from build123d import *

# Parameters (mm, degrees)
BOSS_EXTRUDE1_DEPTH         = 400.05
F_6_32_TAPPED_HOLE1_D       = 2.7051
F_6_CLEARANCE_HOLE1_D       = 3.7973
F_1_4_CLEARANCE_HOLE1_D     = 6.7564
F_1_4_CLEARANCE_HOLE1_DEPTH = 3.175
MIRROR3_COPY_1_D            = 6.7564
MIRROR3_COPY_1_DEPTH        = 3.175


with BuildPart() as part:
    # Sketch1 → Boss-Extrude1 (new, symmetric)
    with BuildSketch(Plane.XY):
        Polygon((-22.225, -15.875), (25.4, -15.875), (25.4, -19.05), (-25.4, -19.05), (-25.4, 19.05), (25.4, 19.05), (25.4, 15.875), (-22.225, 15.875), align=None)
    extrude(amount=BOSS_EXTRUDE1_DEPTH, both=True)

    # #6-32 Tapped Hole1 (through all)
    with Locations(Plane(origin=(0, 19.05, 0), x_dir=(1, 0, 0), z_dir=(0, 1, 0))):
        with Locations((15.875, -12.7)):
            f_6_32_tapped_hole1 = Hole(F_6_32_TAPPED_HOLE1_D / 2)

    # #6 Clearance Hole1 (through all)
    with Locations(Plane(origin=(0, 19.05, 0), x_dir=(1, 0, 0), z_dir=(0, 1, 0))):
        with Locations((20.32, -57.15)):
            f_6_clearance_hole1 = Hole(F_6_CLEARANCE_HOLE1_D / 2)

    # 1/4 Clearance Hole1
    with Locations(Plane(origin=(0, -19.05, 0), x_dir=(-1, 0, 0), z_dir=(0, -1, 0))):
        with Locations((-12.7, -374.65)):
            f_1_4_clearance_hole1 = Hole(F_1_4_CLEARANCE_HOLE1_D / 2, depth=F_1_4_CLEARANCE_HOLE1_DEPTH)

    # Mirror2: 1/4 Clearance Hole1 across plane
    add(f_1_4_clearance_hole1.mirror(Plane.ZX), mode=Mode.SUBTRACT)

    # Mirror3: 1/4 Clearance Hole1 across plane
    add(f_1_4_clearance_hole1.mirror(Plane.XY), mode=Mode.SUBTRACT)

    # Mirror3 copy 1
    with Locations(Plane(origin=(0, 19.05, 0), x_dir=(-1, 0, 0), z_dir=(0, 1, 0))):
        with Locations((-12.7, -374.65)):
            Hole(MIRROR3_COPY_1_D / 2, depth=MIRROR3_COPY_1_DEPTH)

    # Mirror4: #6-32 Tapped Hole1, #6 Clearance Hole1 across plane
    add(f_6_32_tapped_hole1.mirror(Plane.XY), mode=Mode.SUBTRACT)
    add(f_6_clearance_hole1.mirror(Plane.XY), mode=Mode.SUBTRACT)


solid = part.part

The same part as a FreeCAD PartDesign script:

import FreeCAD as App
import Part
import Sketcher

V = App.Vector
Q = App.Units.Quantity

doc = App.newDocument("Part")
params = doc.addObject("Spreadsheet::Sheet", "Params")
for row, (alias, value) in enumerate([
    ("sketch1_width", "2 in"),
    ("sketch1_height", "1.5 in"),
    ("sketch1_height2", "1.25 in"),
    ("sketch1_width2", "1.875 in"),
    ("pad1_length", "31.5 in"),
    ("hole_diameter", "0.1065 in"),
    ("hole2_diameter", "0.1495 in"),
    ("sketch4_diameter", "0.266 in"),
    ("hole3_diameter", "0.266 in"),
    ("hole3_depth", "0.125 in"),
    ("sketch5_diameter", "0.266 in"),
    ("hole4_diameter", "0.266 in"),
    ("hole4_depth", "0.125 in"),
], start=1):
    params.set(f"A{row}", alias)
    params.set(f"B{row}", "=" + value)
    params.setAlias(f"B{row}", alias)

body = doc.addObject("PartDesign::Body", "Body")

sketch1 = body.newObject("Sketcher::SketchObject", "Sketch")
sketch1.AttachmentSupport = (doc.getObject("XY_Plane"), [""])
sketch1.MapMode = "FlatFace"
sketch1.addGeometry(Part.LineSegment(V(25.4, -15.9, 0), V(-22.2, -15.9, 0)), False)
sketch1.addGeometry(Part.LineSegment(V(-22.2, -15.9, 0), V(-22.2, 15.9, 0)), False)
sketch1.addGeometry(Part.LineSegment(V(-22.2, 15.9, 0), V(25.4, 15.9, 0)), False)
sketch1.addGeometry(Part.LineSegment(V(25.4, 15.9, 0), V(25.4, 19.1, 0)), False)
sketch1.addGeometry(Part.LineSegment(V(25.4, 19.1, 0), V(-25.4, 19.1, 0)), False)
sketch1.addGeometry(Part.LineSegment(V(-25.4, 19.1, 0), V(-25.4, -19.1, 0)), False)
sketch1.addGeometry(Part.LineSegment(V(-25.4, -19.1, 0), V(25.4, -19.1, 0)), False)
sketch1.addGeometry(Part.LineSegment(V(25.4, -19.1, 0), V(25.4, -15.9, 0)), False)
sketch1.addConstraint(Sketcher.Constraint("Coincident", 0, 2, 1, 1))
sketch1.addConstraint(Sketcher.Constraint("Coincident", 1, 2, 2, 1))
sketch1.addConstraint(Sketcher.Constraint("Coincident", 2, 2, 3, 1))
sketch1.addConstraint(Sketcher.Constraint("Coincident", 3, 2, 4, 1))
sketch1.addConstraint(Sketcher.Constraint("Coincident", 4, 2, 5, 1))
sketch1.addConstraint(Sketcher.Constraint("Coincident", 5, 2, 6, 1))
sketch1.addConstraint(Sketcher.Constraint("Coincident", 6, 2, 7, 1))
sketch1.addConstraint(Sketcher.Constraint("Coincident", 7, 2, 0, 1))
sketch1.addConstraint(Sketcher.Constraint("Horizontal", 0))
sketch1.addConstraint(Sketcher.Constraint("Vertical", 1))
sketch1.addConstraint(Sketcher.Constraint("Horizontal", 2))
sketch1.addConstraint(Sketcher.Constraint("Vertical", 3))
sketch1.addConstraint(Sketcher.Constraint("Horizontal", 4))
sketch1.addConstraint(Sketcher.Constraint("Vertical", 5))
sketch1.addConstraint(Sketcher.Constraint("Horizontal", 6))
sketch1.addConstraint(Sketcher.Constraint("Vertical", 7))
sketch1.addConstraint(Sketcher.Constraint("Symmetric", 3, 2, 5, 2, -1, 1))
sketch1.addConstraint(Sketcher.Constraint("Symmetric", 2, 2, 7, 2, -1))
sketch1.addConstraint(Sketcher.Constraint("DistanceX", 4, 2, 4, 1, Q("2 in")))
sketch1.addConstraint(Sketcher.Constraint("DistanceY", 5, 2, 5, 1, Q("1.5 in")))
sketch1.addConstraint(Sketcher.Constraint("DistanceY", 1, 1, 1, 2, Q("1.25 in")))
sketch1.addConstraint(Sketcher.Constraint("DistanceX", 0, 2, 0, 1, Q("1.875 in")))
sketch1.setExpression("Constraints[18]", "Params.sketch1_width")
sketch1.setExpression("Constraints[19]", "Params.sketch1_height")
sketch1.setExpression("Constraints[20]", "Params.sketch1_height2")
sketch1.setExpression("Constraints[21]", "Params.sketch1_width2")
pad1 = body.newObject("PartDesign::Pad", "Pad")
pad1.Profile = sketch1
pad1.setExpression("Length", "Params.pad1_length")
pad1.Midplane = True

sketch2 = body.newObject("Sketcher::SketchObject", "Sketch001")
sketch2.AttachmentSupport = (doc.getObject("XZ_Plane"), [""])
sketch2.MapMode = "FlatFace"
sketch2.AttachmentOffset = App.Placement(V(0, 0, -0.75 * 25.4), App.Rotation())
sketch2.addGeometry(Part.Circle(V(15.9, 12.7, 0), V(0, 0, 1), 1.4), False)
sketch2.addConstraint(Sketcher.Constraint("Diameter", 0, Q("0.1065 in")))
sketch2.addConstraint(Sketcher.Constraint("DistanceY", -1, 1, 0, 3, Q("0.5 in")))
sketch2.addConstraint(Sketcher.Constraint("DistanceX", -1, 1, 0, 3, Q("0.625 in")))
doc.recompute()
hole = body.newObject("PartDesign::Hole", "Hole")
hole.Profile = sketch2
hole.ThreadType = "None"
hole.setExpression("Diameter", "Params.hole_diameter")
hole.DepthType = "ThroughAll"
hole.Reversed = True

sketch3 = body.newObject("Sketcher::SketchObject", "Sketch002")
sketch3.AttachmentSupport = (doc.getObject("XZ_Plane"), [""])
sketch3.MapMode = "FlatFace"
sketch3.AttachmentOffset = App.Placement(V(0, 0, -0.75 * 25.4), App.Rotation())
sketch3.addGeometry(Part.Circle(V(20.3, 57.1, 0), V(0, 0, 1), 1.9), False)
sketch3.addConstraint(Sketcher.Constraint("Diameter", 0, Q("0.1495 in")))
sketch3.addConstraint(Sketcher.Constraint("DistanceX", -1, 1, 0, 3, Q("0.8 in")))
sketch3.addConstraint(Sketcher.Constraint("DistanceY", -1, 1, 0, 3, Q("2.25 in")))
doc.recompute()
hole2 = body.newObject("PartDesign::Hole", "Hole001")
hole2.Profile = sketch3
hole2.ThreadType = "None"
hole2.setExpression("Diameter", "Params.hole2_diameter")
hole2.DepthType = "ThroughAll"
hole2.Reversed = True

sketch4 = body.newObject("Sketcher::SketchObject", "Sketch003")
sketch4.AttachmentSupport = (doc.getObject("XZ_Plane"), [""])
sketch4.MapMode = "FlatFace"
sketch4.AttachmentOffset = App.Placement(V(0, 0, 0.75 * 25.4), App.Rotation())
sketch4.addGeometry(Part.Circle(V(12.7, 374.6, 0), V(0, 0, 1), 3.4), False)
sketch4.addConstraint(Sketcher.Constraint("Diameter", 0, Q("0.266 in")))
sketch4.addConstraint(Sketcher.Constraint("DistanceX", -1, 1, 0, 3, Q("0.5 in")))
sketch4.addConstraint(Sketcher.Constraint("DistanceY", -1, 1, 0, 3, Q("14.75 in")))
sketch4.setExpression("Constraints[0]", "Params.sketch4_diameter")
doc.recompute()
hole3 = body.newObject("PartDesign::Hole", "Hole002")
hole3.Profile = sketch4
hole3.ThreadType = "None"
hole3.setExpression("Diameter", "Params.hole3_diameter")
hole3.DepthType = "Dimension"
hole3.setExpression("Depth", "Params.hole3_depth")
hole3.DrillPoint = "Flat"
doc.recompute()

mirrored = body.newObject("PartDesign::Mirrored", "Mirrored")
mirrored.Originals = [hole3]
mirrored.MirrorPlane = (doc.getObject("XZ_Plane"), [""])
body.Tip = mirrored
doc.recompute()

mirrored2 = body.newObject("PartDesign::Mirrored", "Mirrored001")
mirrored2.Originals = [hole3]
mirrored2.MirrorPlane = (doc.getObject("XY_Plane"), [""])
body.Tip = mirrored2

sketch5 = body.newObject("Sketcher::SketchObject", "Sketch004")
sketch5.AttachmentSupport = (doc.getObject("XZ_Plane"), [""])
sketch5.MapMode = "FlatFace"
sketch5.AttachmentOffset = App.Placement(V(0, 0, -0.75 * 25.4), App.Rotation())
sketch5.addGeometry(Part.Circle(V(12.7, -374.6, 0), V(0, 0, 1), 3.4), False)
sketch5.addConstraint(Sketcher.Constraint("Diameter", 0, Q("0.266 in")))
sketch5.addConstraint(Sketcher.Constraint("DistanceX", -1, 1, 0, 3, Q("0.5 in")))
sketch5.addConstraint(Sketcher.Constraint("DistanceY", 0, 3, -1, 1, Q("14.75 in")))
sketch5.setExpression("Constraints[0]", "Params.sketch5_diameter")
doc.recompute()
hole4 = body.newObject("PartDesign::Hole", "Hole003")
hole4.Profile = sketch5
hole4.ThreadType = "None"
hole4.setExpression("Diameter", "Params.hole4_diameter")
hole4.DepthType = "Dimension"
hole4.setExpression("Depth", "Params.hole4_depth")
hole4.DrillPoint = "Flat"
hole4.Reversed = True
doc.recompute()

mirrored3 = body.newObject("PartDesign::Mirrored", "Mirrored002")
mirrored3.Originals = [hole, hole2]
mirrored3.MirrorPlane = (doc.getObject("XY_Plane"), [""])
body.Tip = mirrored3

doc.recompute()
